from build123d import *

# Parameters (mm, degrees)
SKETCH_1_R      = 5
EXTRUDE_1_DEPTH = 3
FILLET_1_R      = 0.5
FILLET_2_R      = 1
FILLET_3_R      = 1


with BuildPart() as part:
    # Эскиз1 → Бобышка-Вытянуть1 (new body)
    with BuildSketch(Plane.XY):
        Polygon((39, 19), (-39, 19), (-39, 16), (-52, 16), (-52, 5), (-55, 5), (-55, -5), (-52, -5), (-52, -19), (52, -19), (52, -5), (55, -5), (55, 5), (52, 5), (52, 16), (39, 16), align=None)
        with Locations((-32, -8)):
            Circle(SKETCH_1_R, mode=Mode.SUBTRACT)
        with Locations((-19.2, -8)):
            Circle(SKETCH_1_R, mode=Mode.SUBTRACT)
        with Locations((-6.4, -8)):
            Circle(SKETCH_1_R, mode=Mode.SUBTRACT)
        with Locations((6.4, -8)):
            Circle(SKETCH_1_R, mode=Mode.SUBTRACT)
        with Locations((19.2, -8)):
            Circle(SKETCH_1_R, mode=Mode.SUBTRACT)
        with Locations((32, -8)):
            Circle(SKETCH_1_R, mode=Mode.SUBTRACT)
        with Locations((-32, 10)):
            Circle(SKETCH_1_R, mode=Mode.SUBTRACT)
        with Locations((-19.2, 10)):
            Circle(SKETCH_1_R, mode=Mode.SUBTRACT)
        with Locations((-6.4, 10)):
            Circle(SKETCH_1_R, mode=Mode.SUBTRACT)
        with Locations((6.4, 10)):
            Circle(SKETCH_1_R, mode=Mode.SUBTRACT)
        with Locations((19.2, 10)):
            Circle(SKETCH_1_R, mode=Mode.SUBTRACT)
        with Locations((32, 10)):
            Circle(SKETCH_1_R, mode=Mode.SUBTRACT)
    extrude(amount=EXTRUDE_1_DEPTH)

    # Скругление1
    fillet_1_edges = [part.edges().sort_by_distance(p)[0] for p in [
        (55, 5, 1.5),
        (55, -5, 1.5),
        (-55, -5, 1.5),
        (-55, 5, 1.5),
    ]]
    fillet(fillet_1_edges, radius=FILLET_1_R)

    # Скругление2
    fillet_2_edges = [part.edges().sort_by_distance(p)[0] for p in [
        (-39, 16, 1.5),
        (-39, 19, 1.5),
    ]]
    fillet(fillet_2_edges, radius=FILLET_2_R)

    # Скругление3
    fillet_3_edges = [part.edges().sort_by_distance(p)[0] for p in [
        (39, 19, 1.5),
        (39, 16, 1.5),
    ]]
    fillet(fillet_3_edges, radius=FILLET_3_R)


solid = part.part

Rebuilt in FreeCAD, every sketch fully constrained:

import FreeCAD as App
import Part
import Sketcher


def edges_at(feature, points):
    """Names of the edges that pass closest to the given points."""
    edges = feature.Shape.Edges
    near = lambda p: min(range(len(edges)), key=lambda i: edges[i].distToShape(Part.Vertex(*p))[0])
    return sorted({f"Edge{near(p) + 1}" for p in points})


def add_polygon(sketch, points):
    """Adds a closed chain of lines whose ends are joined by coincident constraints."""
    first, n = sketch.GeometryCount, len(points)
    for a, b in zip(points, points[1:] + points[:1]):
        sketch.addGeometry(Part.LineSegment(App.Vector(*a, 0), App.Vector(*b, 0)), False)
    for i in range(n):
        sketch.addConstraint(Sketcher.Constraint("Coincident", first + i, 2, first + (i + 1) % n, 1))

doc = App.newDocument("Part")
params = doc.addObject("Spreadsheet::Sheet", "Params")
for row, (alias, value) in enumerate([
    ("sketch1_diameter", "10 mm"),
    ("sketch1_width", "78 mm"),
    ("sketch1_width2", "13 mm"),
    ("sketch1_width3", "3 mm"),
    ("sketch1_height", "11 mm"),
    ("pad1_length", "3 mm"),
    ("fillet_radius", "0.5 mm"),
    ("fillet2_radius", "1 mm"),
    ("fillet3_radius", "1 mm"),
], start=1):
    params.set(f"A{row}", alias)
    params.set(f"B{row}", "=" + value)
    params.setAlias(f"B{row}", alias)

body = doc.addObject("PartDesign::Body", "Body")

# Sketch on XY plane
sketch1 = doc.addObject("Sketcher::SketchObject", "Sketch")
body.addObject(sketch1)
sketch1.AttachmentSupport = (doc.XY_Plane, [""])
sketch1.MapMode = "FlatFace"
add_polygon(sketch1, [(39, 19), (-39, 19), (-39, 16), (-52, 16), (-52, 5), (-55, 5), (-55, -5), (-52, -5), (-52, -19), (52, -19), (52, -5), (55, -5), (55, 5), (52, 5), (52, 16), (39, 16)])  # lines 0-15
sketch1.addGeometry(Part.Circle(App.Vector(-32, -8, 0), App.Vector(0, 0, 1), 5), False)  # 16
sketch1.addGeometry(Part.Circle(App.Vector(-19.2, -8, 0), App.Vector(0, 0, 1), 5), False)  # 17
sketch1.addGeometry(Part.Circle(App.Vector(-6.4, -8, 0), App.Vector(0, 0, 1), 5), False)  # 18
sketch1.addGeometry(Part.Circle(App.Vector(6.4, -8, 0), App.Vector(0, 0, 1), 5), False)  # 19
sketch1.addGeometry(Part.Circle(App.Vector(19.2, -8, 0), App.Vector(0, 0, 1), 5), False)  # 20
sketch1.addGeometry(Part.Circle(App.Vector(32, -8, 0), App.Vector(0, 0, 1), 5), False)  # 21
sketch1.addGeometry(Part.Circle(App.Vector(-32, 10, 0), App.Vector(0, 0, 1), 5), False)  # 22
sketch1.addGeometry(Part.Circle(App.Vector(-19.2, 10, 0), App.Vector(0, 0, 1), 5), False)  # 23
sketch1.addGeometry(Part.Circle(App.Vector(-6.4, 10, 0), App.Vector(0, 0, 1), 5), False)  # 24
sketch1.addGeometry(Part.Circle(App.Vector(6.4, 10, 0), App.Vector(0, 0, 1), 5), False)  # 25
sketch1.addGeometry(Part.Circle(App.Vector(19.2, 10, 0), App.Vector(0, 0, 1), 5), False)  # 26
sketch1.addGeometry(Part.Circle(App.Vector(32, 10, 0), App.Vector(0, 0, 1), 5), False)  # 27
sketch1.addConstraint([
    Sketcher.Constraint("Horizontal", 0),
    Sketcher.Constraint("Vertical", 1),
    Sketcher.Constraint("Horizontal", 2),
    Sketcher.Constraint("Vertical", 3),
    Sketcher.Constraint("Horizontal", 4),
    Sketcher.Constraint("Vertical", 5),
    Sketcher.Constraint("Horizontal", 6),
    Sketcher.Constraint("Vertical", 7),
    Sketcher.Constraint("Horizontal", 8),
    Sketcher.Constraint("Vertical", 9),
    Sketcher.Constraint("Horizontal", 10),
    Sketcher.Constraint("Vertical", 11),
    Sketcher.Constraint("Horizontal", 12),
    Sketcher.Constraint("Vertical", 13),
    Sketcher.Constraint("Horizontal", 14),
    Sketcher.Constraint("Vertical", 15),
    Sketcher.Constraint("Equal", 16, 17),
    Sketcher.Constraint("Equal", 17, 18),
    Sketcher.Constraint("Equal", 18, 19),
    Sketcher.Constraint("Equal", 19, 20),
    Sketcher.Constraint("Equal", 20, 21),
    Sketcher.Constraint("Equal", 21, 22),
    Sketcher.Constraint("Equal", 22, 23),
    Sketcher.Constraint("Equal", 23, 24),
    Sketcher.Constraint("Equal", 24, 25),
    Sketcher.Constraint("Equal", 25, 26),
    Sketcher.Constraint("Equal", 26, 27),
    Sketcher.Constraint("Symmetric", 3, 2, 9, 2, -1, 1),
    Sketcher.Constraint("Symmetric", 5, 2, 11, 2, -1, 1),
    Sketcher.Constraint("Symmetric", 18, 3, 19, 3, -2),
    Sketcher.Constraint("Symmetric", 17, 3, 20, 3, -2),
    Sketcher.Constraint("Symmetric", 16, 3, 21, 3, -2),
    Sketcher.Constraint("Symmetric", 24, 3, 25, 3, -2),
    Sketcher.Constraint("Symmetric", 23, 3, 26, 3, -2),
    Sketcher.Constraint("Symmetric", 22, 3, 27, 3, -2),
    Sketcher.Constraint("Symmetric", 6, 2, 9, 2, -2),
    Sketcher.Constraint("Symmetric", 2, 2, 13, 2, -2),
    Sketcher.Constraint("Horizontal", 16, 3, 17, 3),
    Sketcher.Constraint("Horizontal", 17, 3, 18, 3),
    Sketcher.Constraint("Horizontal", 22, 3, 23, 3),
    Sketcher.Constraint("Horizontal", 23, 3, 24, 3),
    Sketcher.Constraint("Vertical", 16, 3, 22, 3),
    Sketcher.Constraint("Vertical", 17, 3, 23, 3),
    Sketcher.Constraint("Vertical", 18, 3, 24, 3),
    Sketcher.Constraint("Equal", 2, 14),
    Sketcher.Constraint("Equal", 12, 1),
    Sketcher.Constraint("Diameter", 16, 10.0),
    Sketcher.Constraint("DistanceX", 0, 2, 0, 1, 78.0),
    Sketcher.Constraint("DistanceX", 2, 2, 2, 1, 13.0),
    Sketcher.Constraint("DistanceX", 4, 2, 4, 1, 3.0),
    Sketcher.Constraint("DistanceY", 3, 2, 3, 1, 11.0),
    Sketcher.Constraint("DistanceY", 5, 2, 5, 1, 10.0),
    Sketcher.Constraint("DistanceY", 7, 2, 7, 1, 14.0),
    Sketcher.Constraint("DistanceX", 16, 3, -1, 1, 32.0),
    Sketcher.Constraint("DistanceY", 16, 3, -1, 1, 8.0),
    Sketcher.Constraint("DistanceY", -1, 1, 22, 3, 10.0),
    Sketcher.Constraint("DistanceX", 17, 3, -1, 1, 19.2),
    Sketcher.Constraint("DistanceX", 18, 3, -1, 1, 6.4),
])
sketch1.setExpression("Constraints[62]", "Params.sketch1_diameter")
sketch1.setExpression("Constraints[63]", "Params.sketch1_width")
sketch1.setExpression("Constraints[64]", "Params.sketch1_width2")
sketch1.setExpression("Constraints[65]", "Params.sketch1_width3")
sketch1.setExpression("Constraints[66]", "Params.sketch1_height")
pad1 = doc.addObject("PartDesign::Pad", "Pad")
body.addObject(pad1)
pad1.Profile = sketch1
pad1.setExpression("Length", "Params.pad1_length")
doc.recompute()

fillet = doc.addObject("PartDesign::Fillet", "Fillet")
body.addObject(fillet)
fillet.Base = (pad1, edges_at(pad1, [
    (55, 5, 1.5),
    (55, -5, 1.5),
    (-55, -5, 1.5),
    (-55, 5, 1.5),
]))
fillet.setExpression("Radius", "Params.fillet_radius")
doc.recompute()

fillet2 = doc.addObject("PartDesign::Fillet", "Fillet001")
body.addObject(fillet2)
fillet2.Base = (fillet, edges_at(fillet, [(-39, 16, 1.5), (-39, 19, 1.5)]))
fillet2.setExpression("Radius", "Params.fillet2_radius")
doc.recompute()

fillet3 = doc.addObject("PartDesign::Fillet", "Fillet002")
body.addObject(fillet3)
fillet3.Base = (fillet2, edges_at(fillet2, [(39, 19, 1.5), (39, 16, 1.5)]))
fillet3.setExpression("Radius", "Params.fillet3_radius")

doc.recompute()
